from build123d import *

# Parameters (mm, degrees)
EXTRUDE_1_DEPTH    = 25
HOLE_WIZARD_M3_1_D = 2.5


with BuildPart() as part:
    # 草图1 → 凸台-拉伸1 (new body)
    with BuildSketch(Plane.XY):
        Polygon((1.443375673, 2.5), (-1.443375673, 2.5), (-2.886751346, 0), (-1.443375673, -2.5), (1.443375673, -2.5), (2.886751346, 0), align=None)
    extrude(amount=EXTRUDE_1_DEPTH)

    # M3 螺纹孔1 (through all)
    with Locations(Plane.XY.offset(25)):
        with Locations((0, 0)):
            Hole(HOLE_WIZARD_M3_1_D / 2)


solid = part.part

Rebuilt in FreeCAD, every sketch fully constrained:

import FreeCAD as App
import Part
import Sketcher

V = App.Vector
Q = App.Units.Quantity

doc = App.newDocument("Part")
params = doc.addObject("Spreadsheet::Sheet", "Params")
for row, (alias, value) in enumerate([
    ("pad1_length", "25 mm"),
    ("sketch2_diameter", "2.5 mm"),
    ("hole_diameter", "2.5 mm"),
], start=1):
    params.set(f"A{row}", alias)
    params.set(f"B{row}", "=" + value)
    params.setAlias(f"B{row}", alias)

body = doc.addObject("PartDesign::Body", "Body")

# Sketch on XY plane
sketch1 = body.newObject("Sketcher::SketchObject", "Sketch")
sketch1.AttachmentSupport = (doc.getObject("XY_Plane"), [""])
sketch1.MapMode = "FlatFace"
sketch1.addGeometry(Part.LineSegment(V(1.4, 2.5, 0), V(-1.4, 2.5, 0)), False)
sketch1.addGeometry(Part.LineSegment(V(-1.4, 2.5, 0), V(-2.9, 0, 0)), False)
sketch1.addGeometry(Part.LineSegment(V(-2.9, 0, 0), V(-1.4, -2.5, 0)), False)
sketch1.addGeometry(Part.LineSegment(V(-1.4, -2.5, 0), V(1.4, -2.5, 0)), False)
sketch1.addGeometry(Part.LineSegment(V(1.4, -2.5, 0), V(2.9, 0, 0)), False)
sketch1.addGeometry(Part.LineSegment(V(2.9, 0, 0), V(1.4, 2.5, 0)), False)
sketch1.addConstraint(Sketcher.Constraint("Coincident", 0, 2, 1, 1))
sketch1.addConstraint(Sketcher.Constraint("Coincident", 1, 2, 2, 1))
sketch1.addConstraint(Sketcher.Constraint("Coincident", 2, 2, 3, 1))
sketch1.addConstraint(Sketcher.Constraint("Coincident", 3, 2, 4, 1))
sketch1.addConstraint(Sketcher.Constraint("Coincident", 4, 2, 5, 1))
sketch1.addConstraint(Sketcher.Constraint("Coincident", 5, 2, 0, 1))
sketch1.addConstraint(Sketcher.Constraint("Horizontal", 0))
sketch1.addConstraint(Sketcher.Constraint("Horizontal", 3))
sketch1.addConstraint(Sketcher.Constraint("Symmetric", 0, 2, 3, 2, -1, 1))
sketch1.addConstraint(Sketcher.Constraint("Symmetric", 1, 2, 4, 2, -1, 1))
sketch1.addConstraint(Sketcher.Constraint("PointOnObject", 1, 2, -1))
sketch1.addConstraint(Sketcher.Constraint("Parallel", 2, 5))
sketch1.addConstraint(Sketcher.Constraint("Vertical", 0, 2, 2, 2))
sketch1.addConstraint(Sketcher.Constraint("Angle", 1, Q("-120 deg")))
sketch1.addConstraint(Sketcher.Constraint("DistanceY", 2, 2, 0, 2, 5.0))
sketch1.addConstraint(Sketcher.Constraint("DistanceX", 0, 2, 0, 1, 2.886751))
pad1 = body.newObject("PartDesign::Pad", "Pad")
pad1.Profile = sketch1
pad1.setExpression("Length", "Params.pad1_length")

# Sketch on XY plane
sketch2 = body.newObject("Sketcher::SketchObject", "Sketch001")
sketch2.AttachmentSupport = (doc.getObject("XY_Plane"), [""])
sketch2.MapMode = "FlatFace"
sketch2.AttachmentOffset = App.Placement(V(0, 0, 25), App.Rotation())
sketch2.addGeometry(Part.Circle(V(0, 0, 0), V(0, 0, 1), 1.2), False)
sketch2.addConstraint(Sketcher.Constraint("Coincident", 0, 3, -1, 1))
sketch2.addConstraint(Sketcher.Constraint("Diameter", 0, 2.5))
sketch2.setExpression("Constraints[1]", "Params.sketch2_diameter")
doc.recompute()
hole = body.newObject("PartDesign::Hole", "Hole")
hole.Profile = sketch2
hole.ThreadType = "None"
hole.setExpression("Diameter", "Params.hole_diameter")
hole.DepthType = "ThroughAll"

doc.recompute()
